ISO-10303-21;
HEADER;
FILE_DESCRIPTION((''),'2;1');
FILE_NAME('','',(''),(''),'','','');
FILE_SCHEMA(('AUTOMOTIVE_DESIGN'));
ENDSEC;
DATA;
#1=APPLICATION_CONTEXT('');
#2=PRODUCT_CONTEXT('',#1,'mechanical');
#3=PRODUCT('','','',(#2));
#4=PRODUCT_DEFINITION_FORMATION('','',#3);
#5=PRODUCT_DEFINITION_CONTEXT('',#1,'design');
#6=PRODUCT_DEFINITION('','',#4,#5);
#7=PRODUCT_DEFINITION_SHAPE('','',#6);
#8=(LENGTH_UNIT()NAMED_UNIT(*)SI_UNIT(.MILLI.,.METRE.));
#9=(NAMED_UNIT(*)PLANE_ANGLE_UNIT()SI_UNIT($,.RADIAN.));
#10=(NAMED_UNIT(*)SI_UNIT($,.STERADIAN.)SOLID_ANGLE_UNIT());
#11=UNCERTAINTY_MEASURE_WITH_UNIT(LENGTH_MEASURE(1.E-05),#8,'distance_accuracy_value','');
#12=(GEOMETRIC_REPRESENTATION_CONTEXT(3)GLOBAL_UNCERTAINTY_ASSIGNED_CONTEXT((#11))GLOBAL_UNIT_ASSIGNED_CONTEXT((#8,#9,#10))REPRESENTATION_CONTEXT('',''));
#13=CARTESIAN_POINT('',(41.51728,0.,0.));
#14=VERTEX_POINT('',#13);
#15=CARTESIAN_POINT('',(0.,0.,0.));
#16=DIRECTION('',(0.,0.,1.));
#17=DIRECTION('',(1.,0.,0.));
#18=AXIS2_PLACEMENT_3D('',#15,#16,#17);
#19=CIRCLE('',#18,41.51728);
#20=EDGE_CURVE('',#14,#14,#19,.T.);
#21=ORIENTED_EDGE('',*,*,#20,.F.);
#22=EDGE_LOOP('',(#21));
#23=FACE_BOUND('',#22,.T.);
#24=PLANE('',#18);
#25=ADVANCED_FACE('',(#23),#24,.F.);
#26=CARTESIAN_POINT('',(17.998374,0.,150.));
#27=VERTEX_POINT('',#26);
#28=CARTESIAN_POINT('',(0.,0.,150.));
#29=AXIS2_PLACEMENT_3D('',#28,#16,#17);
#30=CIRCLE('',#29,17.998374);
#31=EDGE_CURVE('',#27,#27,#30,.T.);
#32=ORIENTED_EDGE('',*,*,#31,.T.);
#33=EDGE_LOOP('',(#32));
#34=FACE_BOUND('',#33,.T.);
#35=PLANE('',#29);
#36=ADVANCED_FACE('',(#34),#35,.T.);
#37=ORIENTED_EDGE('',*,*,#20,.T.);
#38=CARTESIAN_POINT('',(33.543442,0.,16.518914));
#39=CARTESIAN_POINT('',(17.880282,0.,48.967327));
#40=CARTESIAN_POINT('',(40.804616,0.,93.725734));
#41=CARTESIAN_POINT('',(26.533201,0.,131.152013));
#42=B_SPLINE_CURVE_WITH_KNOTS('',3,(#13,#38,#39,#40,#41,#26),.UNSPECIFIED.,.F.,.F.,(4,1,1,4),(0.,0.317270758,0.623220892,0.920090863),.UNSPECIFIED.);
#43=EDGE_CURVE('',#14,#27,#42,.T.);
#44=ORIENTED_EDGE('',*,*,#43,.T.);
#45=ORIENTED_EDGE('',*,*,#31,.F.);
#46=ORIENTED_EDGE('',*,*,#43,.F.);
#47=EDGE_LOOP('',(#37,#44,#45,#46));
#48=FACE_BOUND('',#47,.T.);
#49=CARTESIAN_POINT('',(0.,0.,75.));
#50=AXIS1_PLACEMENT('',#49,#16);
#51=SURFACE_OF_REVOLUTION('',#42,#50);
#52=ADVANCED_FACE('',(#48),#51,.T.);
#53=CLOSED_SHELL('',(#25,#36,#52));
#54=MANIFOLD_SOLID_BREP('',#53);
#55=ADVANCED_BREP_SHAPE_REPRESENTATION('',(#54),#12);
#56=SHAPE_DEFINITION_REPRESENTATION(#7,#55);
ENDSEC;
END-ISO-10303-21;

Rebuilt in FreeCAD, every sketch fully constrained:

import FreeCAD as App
import Part
import Sketcher
from FreeCAD import Vector

doc = App.newDocument("Part")
body = doc.addObject("PartDesign::Body", "Body")

sketch1 = body.newObject("Sketcher::SketchObject", "Sketch")
sketch1.AttachmentSupport = (doc.getObject("XZ_Plane"), [""])
sketch1.MapMode = "FlatFace"
sketch1.addGeometry(Part.LineSegment(Vector(0, 150, 0), Vector(0, 0, 0)), False)
sketch1.addGeometry(Part.LineSegment(Vector(0, 0, 0), Vector(41.51728, 0, 0)), False)
sketch1.addGeometry(Part.BSplineCurve([Vector(41.51728, 0, 0), Vector(33.543442, 16.518914, 0), Vector(17.880282, 48.967327, 0), Vector(40.804616, 93.725734, 0), Vector(26.533201, 131.152013, 0), Vector(17.998374, 150, 0)], [4, 1, 1, 4], [0, 0.317270758, 0.623220892, 0.920090863], False, 3, [1, 1, 1, 1, 1, 1], False), False)
sketch1.addGeometry(Part.LineSegment(Vector(17.998374, 150, 0), Vector(0, 150, 0)), False)
sketch1.addConstraint(Sketcher.Constraint("Block", 2))
sketch1.addConstraint(Sketcher.Constraint("Coincident", 0, 2, 1, 1))
sketch1.addConstraint(Sketcher.Constraint("Coincident", 1, 2, 2, 1))
sketch1.addConstraint(Sketcher.Constraint("Coincident", 2, 2, 3, 1))
sketch1.addConstraint(Sketcher.Constraint("Coincident", 3, 2, 0, 1))
sketch1.addConstraint(Sketcher.Constraint("Vertical", 0))
sketch1.addConstraint(Sketcher.Constraint("Horizontal", 1))
sketch1.addConstraint(Sketcher.Constraint("Horizontal", 3))
sketch1.addConstraint(Sketcher.Constraint("PointOnObject", 3, 2, -2))
revolution = body.newObject("PartDesign::Revolution", "Revolution")
revolution.Profile = sketch1
revolution.ReferenceAxis = (sketch1, ["V_Axis"])
revolution.Angle = 360

doc.recompute()
